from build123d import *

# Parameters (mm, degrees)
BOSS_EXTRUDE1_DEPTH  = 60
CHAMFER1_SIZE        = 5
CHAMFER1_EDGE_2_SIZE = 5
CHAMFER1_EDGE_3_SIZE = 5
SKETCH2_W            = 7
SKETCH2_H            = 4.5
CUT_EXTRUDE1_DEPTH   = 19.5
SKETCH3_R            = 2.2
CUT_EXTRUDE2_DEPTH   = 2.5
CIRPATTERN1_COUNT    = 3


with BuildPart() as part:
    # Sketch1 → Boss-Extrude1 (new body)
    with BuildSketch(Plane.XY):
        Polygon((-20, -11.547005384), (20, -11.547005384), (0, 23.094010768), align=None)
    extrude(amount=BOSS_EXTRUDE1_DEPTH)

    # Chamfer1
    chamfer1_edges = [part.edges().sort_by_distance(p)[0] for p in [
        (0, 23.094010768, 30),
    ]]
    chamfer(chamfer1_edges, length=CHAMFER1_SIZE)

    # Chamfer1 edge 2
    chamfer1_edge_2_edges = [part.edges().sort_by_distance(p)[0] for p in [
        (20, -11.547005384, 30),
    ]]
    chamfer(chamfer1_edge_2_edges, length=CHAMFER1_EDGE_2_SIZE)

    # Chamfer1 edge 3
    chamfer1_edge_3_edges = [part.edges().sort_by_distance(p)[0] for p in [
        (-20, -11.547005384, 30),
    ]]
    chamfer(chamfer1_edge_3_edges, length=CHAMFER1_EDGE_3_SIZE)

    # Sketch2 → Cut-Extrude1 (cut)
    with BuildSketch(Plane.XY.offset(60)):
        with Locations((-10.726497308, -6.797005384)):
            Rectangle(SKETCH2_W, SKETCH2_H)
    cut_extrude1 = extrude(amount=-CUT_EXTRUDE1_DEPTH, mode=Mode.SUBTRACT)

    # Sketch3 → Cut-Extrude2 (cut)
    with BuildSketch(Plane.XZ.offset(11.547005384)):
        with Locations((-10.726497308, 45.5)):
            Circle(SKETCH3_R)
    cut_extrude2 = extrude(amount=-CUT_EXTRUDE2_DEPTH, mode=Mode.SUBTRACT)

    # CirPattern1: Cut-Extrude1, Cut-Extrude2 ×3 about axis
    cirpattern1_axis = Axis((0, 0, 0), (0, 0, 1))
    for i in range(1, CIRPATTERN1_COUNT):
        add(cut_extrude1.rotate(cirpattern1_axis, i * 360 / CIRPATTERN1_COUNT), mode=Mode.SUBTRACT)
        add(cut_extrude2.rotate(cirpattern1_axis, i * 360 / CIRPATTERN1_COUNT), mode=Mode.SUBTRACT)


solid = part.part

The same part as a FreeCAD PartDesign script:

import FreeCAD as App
import Part
import Sketcher
from FreeCAD import Vector
Q = App.Units.Quantity


def edges_at(feature, points):
    """Names of the edges that pass closest to the given points."""
    edges = feature.Shape.Edges
    near = lambda p: min(range(len(edges)), key=lambda i: edges[i].distToShape(Part.Vertex(*p))[0])
    return sorted({f"Edge{near(p) + 1}" for p in points})

doc = App.newDocument("Part")
body = doc.addObject("PartDesign::Body", "Body")

# Sketch on XY plane
sketch1 = body.newObject("Sketcher::SketchObject", "Sketch")
sketch1.AttachmentSupport = (doc.getObject("XY_Plane"), [""])
sketch1.MapMode = "FlatFace"
sketch1.addGeometry(Part.LineSegment(Vector(-20, -12, 0), Vector(20, -12, 0)), False)
sketch1.addGeometry(Part.LineSegment(Vector(20, -12, 0), Vector(0, 23, 0)), False)
sketch1.addGeometry(Part.LineSegment(Vector(0, 23, 0), Vector(-20, -12, 0)), False)
sketch1.addConstraint(Sketcher.Constraint("Coincident", 0, 2, 1, 1))
sketch1.addConstraint(Sketcher.Constraint("Coincident", 1, 2, 2, 1))
sketch1.addConstraint(Sketcher.Constraint("Coincident", 2, 2, 0, 1))
sketch1.addConstraint(Sketcher.Constraint("Horizontal", 0))
sketch1.addConstraint(Sketcher.Constraint("PointOnObject", 1, 2, -2))
sketch1.addConstraint(Sketcher.Constraint("Equal", 1, 2))
sketch1.addConstraint(Sketcher.Constraint("DistanceX", 0, 1, 0, 2, Q("40 mm")))
sketch1.addConstraint(Sketcher.Constraint("Angle", 1, Q("120 deg")))
sketch1.addConstraint(Sketcher.Constraint("DistanceY", -1, 1, 1, 2, Q("23.094011 mm")))
pad1 = body.newObject("PartDesign::Pad", "Pad")
pad1.Profile = sketch1
pad1.Length = 60
doc.recompute()

chamfer = body.newObject("PartDesign::Chamfer", "Chamfer")
chamfer.Base = (pad1, edges_at(pad1, [(0, 23.094, 30)]))
chamfer.Size = 5
doc.recompute()

chamfer2 = body.newObject("PartDesign::Chamfer", "Chamfer001")
chamfer2.Base = (chamfer, edges_at(chamfer, [(20, -11.547, 30)]))
chamfer2.Size = 5
doc.recompute()

chamfer3 = body.newObject("PartDesign::Chamfer", "Chamfer002")
chamfer3.Base = (chamfer2, edges_at(chamfer2, [(-20, -11.547, 30)]))
chamfer3.Size = 5

# Sketch on XY plane
sketch2 = body.newObject("Sketcher::SketchObject", "Sketch001")
sketch2.AttachmentSupport = (doc.getObject("XY_Plane"), [""])
sketch2.MapMode = "FlatFace"
sketch2.AttachmentOffset = App.Placement(Vector(0, 0, 60), App.Rotation())
sketch2.addGeometry(Part.LineSegment(Vector(-14.2, -4.5, 0), Vector(-14.2, -9, 0)), False)
sketch2.addGeometry(Part.LineSegment(Vector(-14.2, -9, 0), Vector(-7.2, -9, 0)), False)
sketch2.addGeometry(Part.LineSegment(Vector(-7.2, -9, 0), Vector(-7.2, -4.5, 0)), False)
sketch2.addGeometry(Part.LineSegment(Vector(-7.2, -4.5, 0), Vector(-14.2, -4.5, 0)), False)
sketch2.addConstraint(Sketcher.Constraint("Coincident", 0, 2, 1, 1))
sketch2.addConstraint(Sketcher.Constraint("Coincident", 1, 2, 2, 1))
sketch2.addConstraint(Sketcher.Constraint("Coincident", 2, 2, 3, 1))
sketch2.addConstraint(Sketcher.Constraint("Coincident", 3, 2, 0, 1))
sketch2.addConstraint(Sketcher.Constraint("Vertical", 0))
sketch2.addConstraint(Sketcher.Constraint("Horizontal", 1))
sketch2.addConstraint(Sketcher.Constraint("Vertical", 2))
sketch2.addConstraint(Sketcher.Constraint("Horizontal", 3))
sketch2.addConstraint(Sketcher.Constraint("DistanceX", 1, 1, 1, 2, Q("7 mm")))
sketch2.addConstraint(Sketcher.Constraint("DistanceY", 0, 2, 0, 1, Q("4.5 mm")))
sketch2.addConstraint(Sketcher.Constraint("DistanceX", 0, 2, -1, 1, Q("14.226497 mm")))
sketch2.addConstraint(Sketcher.Constraint("DistanceY", 0, 2, -1, 1, Q("9.047005 mm")))
pocket1 = body.newObject("PartDesign::Pocket", "Pocket")
pocket1.Profile = sketch2
pocket1.Length = 19.5

# Sketch on XZ plane
sketch3 = body.newObject("Sketcher::SketchObject", "Sketch002")
sketch3.AttachmentSupport = (doc.getObject("XZ_Plane"), [""])
sketch3.MapMode = "FlatFace"
sketch3.AttachmentOffset = App.Placement(Vector(0, 0, 11.547005), App.Rotation())
sketch3.addGeometry(Part.Circle(Vector(-10.7, 45.5, 0), Vector(0, 0, 1), 2.2), False)
sketch3.addConstraint(Sketcher.Constraint("Diameter", 0, Q("4.4 mm")))
sketch3.addConstraint(Sketcher.Constraint("DistanceY", -1, 1, 0, 3, Q("45.5 mm")))
sketch3.addConstraint(Sketcher.Constraint("DistanceX", 0, 3, -1, 1, Q("10.726497 mm")))
pocket2 = body.newObject("PartDesign::Pocket", "Pocket001")
pocket2.Profile = sketch3
pocket2.Length = 2.5
doc.recompute()

polarpattern = body.newObject("PartDesign::PolarPattern", "PolarPattern")
polarpattern.Originals = [pocket1, pocket2]
polarpattern.Axis = (doc.getObject("Z_Axis"), [""])
polarpattern.Angle = 360
polarpattern.Occurrences = 3
body.Tip = polarpattern

doc.recompute()
